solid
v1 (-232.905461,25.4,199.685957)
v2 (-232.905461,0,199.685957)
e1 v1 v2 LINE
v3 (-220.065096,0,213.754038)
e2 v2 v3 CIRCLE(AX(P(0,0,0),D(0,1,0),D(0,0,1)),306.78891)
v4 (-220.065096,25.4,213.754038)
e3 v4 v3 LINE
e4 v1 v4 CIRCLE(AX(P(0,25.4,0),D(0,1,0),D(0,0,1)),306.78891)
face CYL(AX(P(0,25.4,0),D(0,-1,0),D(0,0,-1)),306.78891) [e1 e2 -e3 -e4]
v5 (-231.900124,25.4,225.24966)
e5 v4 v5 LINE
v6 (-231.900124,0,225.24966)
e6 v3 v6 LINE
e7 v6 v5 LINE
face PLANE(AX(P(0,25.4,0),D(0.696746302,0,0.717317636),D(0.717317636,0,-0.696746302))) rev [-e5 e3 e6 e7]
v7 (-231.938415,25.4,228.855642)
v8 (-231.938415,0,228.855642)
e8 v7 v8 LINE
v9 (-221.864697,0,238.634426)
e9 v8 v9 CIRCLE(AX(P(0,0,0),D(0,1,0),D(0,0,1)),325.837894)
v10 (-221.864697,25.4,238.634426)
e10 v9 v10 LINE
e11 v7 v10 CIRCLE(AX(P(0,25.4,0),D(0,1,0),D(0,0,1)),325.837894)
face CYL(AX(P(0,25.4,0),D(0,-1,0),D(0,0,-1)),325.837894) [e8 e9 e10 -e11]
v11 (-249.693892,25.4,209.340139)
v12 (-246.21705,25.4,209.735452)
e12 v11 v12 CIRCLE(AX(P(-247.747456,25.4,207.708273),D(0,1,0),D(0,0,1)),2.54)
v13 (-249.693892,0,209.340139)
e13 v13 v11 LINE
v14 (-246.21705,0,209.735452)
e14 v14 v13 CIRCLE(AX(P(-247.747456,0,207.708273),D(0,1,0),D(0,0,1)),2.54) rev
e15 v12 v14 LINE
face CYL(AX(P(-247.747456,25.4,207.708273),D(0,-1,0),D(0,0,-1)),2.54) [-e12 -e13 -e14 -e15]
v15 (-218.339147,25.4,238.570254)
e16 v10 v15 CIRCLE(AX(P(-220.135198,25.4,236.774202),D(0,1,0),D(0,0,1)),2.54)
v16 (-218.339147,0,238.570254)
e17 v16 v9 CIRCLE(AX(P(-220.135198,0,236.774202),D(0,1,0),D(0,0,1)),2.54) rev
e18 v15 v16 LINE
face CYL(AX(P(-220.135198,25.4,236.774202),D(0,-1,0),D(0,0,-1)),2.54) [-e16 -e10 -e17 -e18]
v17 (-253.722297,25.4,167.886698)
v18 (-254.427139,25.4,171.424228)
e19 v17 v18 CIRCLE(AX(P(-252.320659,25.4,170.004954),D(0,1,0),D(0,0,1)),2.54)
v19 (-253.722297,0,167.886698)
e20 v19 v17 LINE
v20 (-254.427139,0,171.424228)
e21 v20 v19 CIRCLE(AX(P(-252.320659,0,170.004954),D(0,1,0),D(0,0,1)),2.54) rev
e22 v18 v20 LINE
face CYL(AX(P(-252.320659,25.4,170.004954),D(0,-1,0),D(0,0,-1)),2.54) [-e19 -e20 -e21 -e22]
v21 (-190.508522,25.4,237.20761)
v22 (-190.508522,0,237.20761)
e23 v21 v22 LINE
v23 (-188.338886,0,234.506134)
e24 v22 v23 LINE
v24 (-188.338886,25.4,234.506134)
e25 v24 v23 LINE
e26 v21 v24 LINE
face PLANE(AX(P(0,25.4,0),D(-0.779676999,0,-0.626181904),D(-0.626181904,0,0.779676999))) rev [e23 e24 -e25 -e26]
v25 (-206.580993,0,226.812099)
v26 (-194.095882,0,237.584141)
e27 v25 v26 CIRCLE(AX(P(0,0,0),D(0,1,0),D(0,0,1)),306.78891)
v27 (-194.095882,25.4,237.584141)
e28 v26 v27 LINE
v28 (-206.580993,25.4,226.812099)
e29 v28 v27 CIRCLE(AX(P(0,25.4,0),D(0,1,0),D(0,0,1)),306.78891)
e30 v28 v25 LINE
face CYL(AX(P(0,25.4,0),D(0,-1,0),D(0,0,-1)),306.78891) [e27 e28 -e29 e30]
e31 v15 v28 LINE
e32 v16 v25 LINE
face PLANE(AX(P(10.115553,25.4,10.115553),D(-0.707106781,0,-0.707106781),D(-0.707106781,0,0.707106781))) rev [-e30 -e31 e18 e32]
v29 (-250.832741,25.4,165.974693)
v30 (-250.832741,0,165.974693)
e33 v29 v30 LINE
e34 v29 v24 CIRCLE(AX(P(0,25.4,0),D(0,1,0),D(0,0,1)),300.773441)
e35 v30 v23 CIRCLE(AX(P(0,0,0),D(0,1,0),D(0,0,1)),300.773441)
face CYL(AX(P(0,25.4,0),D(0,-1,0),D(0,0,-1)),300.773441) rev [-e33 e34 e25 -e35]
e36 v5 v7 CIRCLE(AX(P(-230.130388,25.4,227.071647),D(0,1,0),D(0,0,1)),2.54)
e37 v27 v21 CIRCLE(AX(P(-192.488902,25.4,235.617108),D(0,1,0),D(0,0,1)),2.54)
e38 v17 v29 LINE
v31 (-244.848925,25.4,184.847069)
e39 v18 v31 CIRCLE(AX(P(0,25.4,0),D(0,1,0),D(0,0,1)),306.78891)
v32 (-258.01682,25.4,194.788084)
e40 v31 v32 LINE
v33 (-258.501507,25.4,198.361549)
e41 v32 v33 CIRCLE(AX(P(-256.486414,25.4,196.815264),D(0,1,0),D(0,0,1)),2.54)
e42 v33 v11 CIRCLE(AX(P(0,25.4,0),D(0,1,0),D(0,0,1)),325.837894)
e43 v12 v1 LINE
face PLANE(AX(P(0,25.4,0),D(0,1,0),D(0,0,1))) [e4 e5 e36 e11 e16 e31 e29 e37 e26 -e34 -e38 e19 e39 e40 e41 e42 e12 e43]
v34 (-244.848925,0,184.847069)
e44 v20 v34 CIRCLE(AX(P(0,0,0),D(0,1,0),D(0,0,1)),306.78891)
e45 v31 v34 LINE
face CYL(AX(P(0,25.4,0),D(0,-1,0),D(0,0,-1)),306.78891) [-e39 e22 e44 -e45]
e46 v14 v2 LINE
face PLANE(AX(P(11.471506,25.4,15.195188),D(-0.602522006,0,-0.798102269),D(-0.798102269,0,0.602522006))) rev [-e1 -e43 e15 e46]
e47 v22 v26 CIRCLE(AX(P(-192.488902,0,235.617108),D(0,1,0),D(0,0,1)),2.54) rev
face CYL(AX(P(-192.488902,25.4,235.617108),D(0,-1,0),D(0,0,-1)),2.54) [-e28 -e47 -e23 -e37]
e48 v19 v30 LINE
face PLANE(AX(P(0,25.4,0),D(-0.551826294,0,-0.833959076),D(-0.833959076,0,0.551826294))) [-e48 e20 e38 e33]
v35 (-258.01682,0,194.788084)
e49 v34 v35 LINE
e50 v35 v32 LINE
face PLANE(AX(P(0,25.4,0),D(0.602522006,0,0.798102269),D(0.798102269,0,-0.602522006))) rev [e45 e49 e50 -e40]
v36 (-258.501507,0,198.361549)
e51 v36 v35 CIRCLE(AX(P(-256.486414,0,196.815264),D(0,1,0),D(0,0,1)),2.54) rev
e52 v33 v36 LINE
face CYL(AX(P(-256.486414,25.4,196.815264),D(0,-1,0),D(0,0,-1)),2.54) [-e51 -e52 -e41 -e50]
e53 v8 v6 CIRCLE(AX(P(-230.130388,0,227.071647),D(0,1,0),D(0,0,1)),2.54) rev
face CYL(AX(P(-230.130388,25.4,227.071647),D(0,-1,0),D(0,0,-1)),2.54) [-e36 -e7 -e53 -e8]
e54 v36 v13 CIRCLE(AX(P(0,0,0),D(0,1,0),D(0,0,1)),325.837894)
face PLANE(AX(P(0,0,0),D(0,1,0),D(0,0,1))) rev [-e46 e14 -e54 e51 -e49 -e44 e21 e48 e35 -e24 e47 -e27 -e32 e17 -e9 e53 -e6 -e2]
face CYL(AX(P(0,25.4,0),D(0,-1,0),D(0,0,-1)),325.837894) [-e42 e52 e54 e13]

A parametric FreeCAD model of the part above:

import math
import FreeCAD as App
import Part
import Sketcher
Q = App.Units.Quantity


def edges_at(feature, points):
    """Names of the edges that pass closest to the given points."""
    edges = feature.Shape.Edges
    near = lambda p: min(range(len(edges)), key=lambda i: edges[i].distToShape(Part.Vertex(*p))[0])
    return sorted({f"Edge{near(p) + 1}" for p in points})

doc = App.newDocument("Part")
params = doc.addObject("Spreadsheet::Sheet", "Params")
for row, (alias, value) in enumerate([
    ("pad1_length", "1 in"),
    ("fillet_radius", "0.1 in"),
], start=1):
    params.set(f"A{row}", alias)
    params.set(f"B{row}", "=" + value)
    params.setAlias(f"B{row}", alias)

body = doc.addObject("PartDesign::Body", "Body")

sketch1 = body.newObject("Sketcher::SketchObject", "Sketch")
sketch1.AttachmentSupport = (doc.getObject("XZ_Plane"), [""])
sketch1.MapMode = "FlatFace"
sketch1.addGeometry(Part.ArcOfCircle(Part.Circle(App.Vector(0.000001, 0, 0), App.Vector(0, 0, 1), 300.773442), math.radians(142.949263), math.radians(146.507605)), False)
sketch1.addGeometry(Part.LineSegment(App.Vector(-250.832741, 165.974693, 0), App.Vector(-255.849396, 169.294187, 0)), False)
sketch1.addGeometry(Part.ArcOfCircle(Part.Circle(App.Vector(0, 0, 0), App.Vector(0, 0, 1), 306.78891), math.radians(142.949263), math.radians(146.507605)), False)
sketch1.addGeometry(Part.LineSegment(App.Vector(-244.848925, 184.847069, 0), App.Vector(-260.051963, 196.324502, 0)), False)
sketch1.addGeometry(Part.ArcOfCircle(Part.Circle(App.Vector(0, 0, 0), App.Vector(0, 0, 1), 325.837895), math.radians(139.599485), math.radians(142.949263)), False)
sketch1.addGeometry(Part.LineSegment(App.Vector(-248.136139, 211.184256, 0), App.Vector(-232.905461, 199.685957, 0)), False)
sketch1.addGeometry(Part.ArcOfCircle(Part.Circle(App.Vector(0.000001, -0.000001, 0), App.Vector(0, 0, 1), 306.788911), math.radians(135.833461), math.radians(139.391232)), False)
sketch1.addGeometry(Part.LineSegment(App.Vector(-220.065096, 213.754038, 0), App.Vector(-233.729268, 227.026348, 0)), False)
sketch1.addGeometry(Part.ArcOfCircle(Part.Circle(App.Vector(0, 0, 0), App.Vector(0, 0, 1), 325.837894), math.radians(132.483683), math.radians(135.833461)), False)
sketch1.addGeometry(Part.LineSegment(App.Vector(-220.064468, 240.295575, 0), App.Vector(-206.580993, 226.812099, 0)), False)
sketch1.addGeometry(Part.ArcOfCircle(Part.Circle(App.Vector(0, 0, 0), App.Vector(0, 0, 1), 306.78891), math.radians(128.768989), math.radians(132.327331)), False)
sketch1.addGeometry(Part.LineSegment(App.Vector(-192.105664, 239.196256, 0), App.Vector(-188.338886, 234.506134, 0)), False)
sketch1.addGeometry(Part.ArcOfCircle(Part.Circle(App.Vector(0, 0, 0), App.Vector(0, 0, 1), 300.773441), math.radians(128.768989), math.radians(132.327331)), False)
sketch1.addGeometry(Part.ArcOfCircle(Part.Circle(App.Vector(0, 0, 0), App.Vector(0, 0, 1), 300.77344), math.radians(132.327331), math.radians(135.833461)), False)
sketch1.addGeometry(Part.ArcOfCircle(Part.Circle(App.Vector(0, 0, 0), App.Vector(0, 0, 1), 300.773441), math.radians(135.833461), math.radians(142.949263)), False)
sketch1.addConstraint(Sketcher.Constraint("Coincident", 0, 2, 1, 1))
sketch1.addConstraint(Sketcher.Constraint("Coincident", 1, 2, 2, 2))
sketch1.addConstraint(Sketcher.Constraint("Coincident", 2, 1, 3, 1))
sketch1.addConstraint(Sketcher.Constraint("Coincident", 3, 2, 4, 2))
sketch1.addConstraint(Sketcher.Constraint("Coincident", 4, 1, 5, 1))
sketch1.addConstraint(Sketcher.Constraint("Coincident", 5, 2, 6, 2))
sketch1.addConstraint(Sketcher.Constraint("Coincident", 6, 1, 7, 1))
sketch1.addConstraint(Sketcher.Constraint("Coincident", 7, 2, 8, 2))
sketch1.addConstraint(Sketcher.Constraint("Coincident", 8, 1, 9, 1))
sketch1.addConstraint(Sketcher.Constraint("Coincident", 9, 2, 10, 2))
sketch1.addConstraint(Sketcher.Constraint("Coincident", 10, 1, 11, 1))
sketch1.addConstraint(Sketcher.Constraint("Coincident", 11, 2, 12, 1))
sketch1.addConstraint(Sketcher.Constraint("Tangent", 12, 2, 13, 1))
sketch1.addConstraint(Sketcher.Constraint("Tangent", 13, 2, 14, 1))
sketch1.addConstraint(Sketcher.Constraint("Tangent", 14, 2, 0, 1))
sketch1.addConstraint(Sketcher.Constraint("Coincident", 0, 3, -1, 1))
sketch1.addConstraint(Sketcher.Constraint("Coincident", 2, 3, -1, 1))
sketch1.addConstraint(Sketcher.Constraint("Coincident", 4, 3, -1, 1))
sketch1.addConstraint(Sketcher.Constraint("Coincident", 6, 3, -1, 1))
sketch1.addConstraint(Sketcher.Constraint("Coincident", 8, 3, -1, 1))
sketch1.addConstraint(Sketcher.Constraint("Coincident", 10, 3, -1, 1))
sketch1.addConstraint(Sketcher.Constraint("Coincident", 12, 3, -1, 1))
sketch1.addConstraint(Sketcher.Constraint("Equal", 2, 6))
sketch1.addConstraint(Sketcher.Constraint("Equal", 4, 8))
sketch1.addConstraint(Sketcher.Constraint("Equal", 6, 10))
sketch1.addConstraint(Sketcher.Constraint("Equal", 0, 12))
sketch1.addConstraint(Sketcher.Constraint("Parallel", 3, 5))
sketch1.addConstraint(Sketcher.Constraint("Angle", 9, Q("-45 deg")))
sketch1.addConstraint(Sketcher.Constraint("Radius", 0, 300.773442))
sketch1.addConstraint(Sketcher.Constraint("Radius", 2, 306.78891))
sketch1.addConstraint(Sketcher.Constraint("Radius", 4, 325.837895))
sketch1.addConstraint(Sketcher.Constraint("DistanceY", -1, 1, 3, 2, 196.324502))
sketch1.addConstraint(Sketcher.Constraint("DistanceY", -1, 1, 9, 2, 226.812099))
sketch1.addConstraint(Sketcher.Constraint("DistanceX", 0, 2, 4, 1, 2.696602))
sketch1.addConstraint(Sketcher.Constraint("DistanceY", 5, 2, 4, 1, 11.498299))
sketch1.addConstraint(Sketcher.Constraint("DistanceX", 3, 2, 5, 2, 27.146502))
sketch1.addConstraint(Sketcher.Constraint("DistanceX", 7, 2, 8, 1, 13.6648))
sketch1.addConstraint(Sketcher.Constraint("DistanceY", 5, 2, 10, 1, 39.5103))
sketch1.addConstraint(Sketcher.Constraint("DistanceX", 12, 2, 11, 2, 14.191499))
sketch1.addConstraint(Sketcher.Constraint("DistanceX", 6, 1, 13, 2, 4.315002))
sketch1.addConstraint(Sketcher.Constraint("DistanceX", 13, 2, 9, 2, 9.169101))
sketch1.addConstraint(Sketcher.Constraint("DistanceX", 1, 2, 2, 1, 11.000471))
sketch1.addConstraint(Sketcher.Constraint("DistanceY", 11, 2, 8, 1, 5.789441))
sketch1.addConstraint(Sketcher.Constraint("DistanceX", 2, 1, 14, 2, 4.800959))
pad1 = body.newObject("PartDesign::Pad", "Pad")
pad1.Profile = sketch1
pad1.setExpression("Length", "Params.pad1_length")
pad1.Reversed = True
doc.recompute()

fillet = body.newObject("PartDesign::Fillet", "Fillet")
fillet.Base = (pad1, edges_at(pad1, [
    (-192.106, 12.7, 239.196),
    (-220.064, 12.7, 240.296),
    (-233.729, 12.7, 227.026),
    (-248.136, 12.7, 211.184),
    (-260.052, 12.7, 196.325),
    (-255.849, 12.7, 169.294),
]))
fillet.setExpression("Radius", "Params.fillet_radius")

doc.recompute()
